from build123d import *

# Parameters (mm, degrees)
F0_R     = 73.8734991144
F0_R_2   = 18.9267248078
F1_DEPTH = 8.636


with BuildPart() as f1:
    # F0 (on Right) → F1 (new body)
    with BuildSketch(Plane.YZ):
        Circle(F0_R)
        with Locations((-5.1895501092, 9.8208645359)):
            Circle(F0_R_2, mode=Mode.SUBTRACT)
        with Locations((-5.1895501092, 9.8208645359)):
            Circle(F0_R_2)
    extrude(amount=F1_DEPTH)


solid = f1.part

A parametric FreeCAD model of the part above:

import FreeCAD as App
import Part
import Sketcher
Q = App.Units.Quantity

doc = App.newDocument("Part")
params = doc.addObject("Spreadsheet::Sheet", "Params")
for row, (alias, value) in enumerate([
    ("pad1_length", "0.34 in"),
], start=1):
    params.set(f"A{row}", alias)
    params.set(f"B{row}", "=" + value)
    params.setAlias(f"B{row}", alias)

body = doc.addObject("PartDesign::Body", "Body")

# Sketch on YZ plane
sketch1 = body.newObject("Sketcher::SketchObject", "Sketch")
sketch1.AttachmentSupport = (doc.getObject("YZ_Plane"), [""])
sketch1.MapMode = "FlatFace"
sketch1.addGeometry(Part.Circle(App.Vector(0, 0, 0), App.Vector(0, 0, 1), 74), False)
sketch1.addConstraint([
    Sketcher.Constraint("Coincident", 0, 3, -1, 1),
    Sketcher.Constraint("Diameter", 0, Q("147.746998 mm")),
])
pad1 = body.newObject("PartDesign::Pad", "Pad")
pad1.Profile = sketch1
pad1.setExpression("Length", "Params.pad1_length")

doc.recompute()
